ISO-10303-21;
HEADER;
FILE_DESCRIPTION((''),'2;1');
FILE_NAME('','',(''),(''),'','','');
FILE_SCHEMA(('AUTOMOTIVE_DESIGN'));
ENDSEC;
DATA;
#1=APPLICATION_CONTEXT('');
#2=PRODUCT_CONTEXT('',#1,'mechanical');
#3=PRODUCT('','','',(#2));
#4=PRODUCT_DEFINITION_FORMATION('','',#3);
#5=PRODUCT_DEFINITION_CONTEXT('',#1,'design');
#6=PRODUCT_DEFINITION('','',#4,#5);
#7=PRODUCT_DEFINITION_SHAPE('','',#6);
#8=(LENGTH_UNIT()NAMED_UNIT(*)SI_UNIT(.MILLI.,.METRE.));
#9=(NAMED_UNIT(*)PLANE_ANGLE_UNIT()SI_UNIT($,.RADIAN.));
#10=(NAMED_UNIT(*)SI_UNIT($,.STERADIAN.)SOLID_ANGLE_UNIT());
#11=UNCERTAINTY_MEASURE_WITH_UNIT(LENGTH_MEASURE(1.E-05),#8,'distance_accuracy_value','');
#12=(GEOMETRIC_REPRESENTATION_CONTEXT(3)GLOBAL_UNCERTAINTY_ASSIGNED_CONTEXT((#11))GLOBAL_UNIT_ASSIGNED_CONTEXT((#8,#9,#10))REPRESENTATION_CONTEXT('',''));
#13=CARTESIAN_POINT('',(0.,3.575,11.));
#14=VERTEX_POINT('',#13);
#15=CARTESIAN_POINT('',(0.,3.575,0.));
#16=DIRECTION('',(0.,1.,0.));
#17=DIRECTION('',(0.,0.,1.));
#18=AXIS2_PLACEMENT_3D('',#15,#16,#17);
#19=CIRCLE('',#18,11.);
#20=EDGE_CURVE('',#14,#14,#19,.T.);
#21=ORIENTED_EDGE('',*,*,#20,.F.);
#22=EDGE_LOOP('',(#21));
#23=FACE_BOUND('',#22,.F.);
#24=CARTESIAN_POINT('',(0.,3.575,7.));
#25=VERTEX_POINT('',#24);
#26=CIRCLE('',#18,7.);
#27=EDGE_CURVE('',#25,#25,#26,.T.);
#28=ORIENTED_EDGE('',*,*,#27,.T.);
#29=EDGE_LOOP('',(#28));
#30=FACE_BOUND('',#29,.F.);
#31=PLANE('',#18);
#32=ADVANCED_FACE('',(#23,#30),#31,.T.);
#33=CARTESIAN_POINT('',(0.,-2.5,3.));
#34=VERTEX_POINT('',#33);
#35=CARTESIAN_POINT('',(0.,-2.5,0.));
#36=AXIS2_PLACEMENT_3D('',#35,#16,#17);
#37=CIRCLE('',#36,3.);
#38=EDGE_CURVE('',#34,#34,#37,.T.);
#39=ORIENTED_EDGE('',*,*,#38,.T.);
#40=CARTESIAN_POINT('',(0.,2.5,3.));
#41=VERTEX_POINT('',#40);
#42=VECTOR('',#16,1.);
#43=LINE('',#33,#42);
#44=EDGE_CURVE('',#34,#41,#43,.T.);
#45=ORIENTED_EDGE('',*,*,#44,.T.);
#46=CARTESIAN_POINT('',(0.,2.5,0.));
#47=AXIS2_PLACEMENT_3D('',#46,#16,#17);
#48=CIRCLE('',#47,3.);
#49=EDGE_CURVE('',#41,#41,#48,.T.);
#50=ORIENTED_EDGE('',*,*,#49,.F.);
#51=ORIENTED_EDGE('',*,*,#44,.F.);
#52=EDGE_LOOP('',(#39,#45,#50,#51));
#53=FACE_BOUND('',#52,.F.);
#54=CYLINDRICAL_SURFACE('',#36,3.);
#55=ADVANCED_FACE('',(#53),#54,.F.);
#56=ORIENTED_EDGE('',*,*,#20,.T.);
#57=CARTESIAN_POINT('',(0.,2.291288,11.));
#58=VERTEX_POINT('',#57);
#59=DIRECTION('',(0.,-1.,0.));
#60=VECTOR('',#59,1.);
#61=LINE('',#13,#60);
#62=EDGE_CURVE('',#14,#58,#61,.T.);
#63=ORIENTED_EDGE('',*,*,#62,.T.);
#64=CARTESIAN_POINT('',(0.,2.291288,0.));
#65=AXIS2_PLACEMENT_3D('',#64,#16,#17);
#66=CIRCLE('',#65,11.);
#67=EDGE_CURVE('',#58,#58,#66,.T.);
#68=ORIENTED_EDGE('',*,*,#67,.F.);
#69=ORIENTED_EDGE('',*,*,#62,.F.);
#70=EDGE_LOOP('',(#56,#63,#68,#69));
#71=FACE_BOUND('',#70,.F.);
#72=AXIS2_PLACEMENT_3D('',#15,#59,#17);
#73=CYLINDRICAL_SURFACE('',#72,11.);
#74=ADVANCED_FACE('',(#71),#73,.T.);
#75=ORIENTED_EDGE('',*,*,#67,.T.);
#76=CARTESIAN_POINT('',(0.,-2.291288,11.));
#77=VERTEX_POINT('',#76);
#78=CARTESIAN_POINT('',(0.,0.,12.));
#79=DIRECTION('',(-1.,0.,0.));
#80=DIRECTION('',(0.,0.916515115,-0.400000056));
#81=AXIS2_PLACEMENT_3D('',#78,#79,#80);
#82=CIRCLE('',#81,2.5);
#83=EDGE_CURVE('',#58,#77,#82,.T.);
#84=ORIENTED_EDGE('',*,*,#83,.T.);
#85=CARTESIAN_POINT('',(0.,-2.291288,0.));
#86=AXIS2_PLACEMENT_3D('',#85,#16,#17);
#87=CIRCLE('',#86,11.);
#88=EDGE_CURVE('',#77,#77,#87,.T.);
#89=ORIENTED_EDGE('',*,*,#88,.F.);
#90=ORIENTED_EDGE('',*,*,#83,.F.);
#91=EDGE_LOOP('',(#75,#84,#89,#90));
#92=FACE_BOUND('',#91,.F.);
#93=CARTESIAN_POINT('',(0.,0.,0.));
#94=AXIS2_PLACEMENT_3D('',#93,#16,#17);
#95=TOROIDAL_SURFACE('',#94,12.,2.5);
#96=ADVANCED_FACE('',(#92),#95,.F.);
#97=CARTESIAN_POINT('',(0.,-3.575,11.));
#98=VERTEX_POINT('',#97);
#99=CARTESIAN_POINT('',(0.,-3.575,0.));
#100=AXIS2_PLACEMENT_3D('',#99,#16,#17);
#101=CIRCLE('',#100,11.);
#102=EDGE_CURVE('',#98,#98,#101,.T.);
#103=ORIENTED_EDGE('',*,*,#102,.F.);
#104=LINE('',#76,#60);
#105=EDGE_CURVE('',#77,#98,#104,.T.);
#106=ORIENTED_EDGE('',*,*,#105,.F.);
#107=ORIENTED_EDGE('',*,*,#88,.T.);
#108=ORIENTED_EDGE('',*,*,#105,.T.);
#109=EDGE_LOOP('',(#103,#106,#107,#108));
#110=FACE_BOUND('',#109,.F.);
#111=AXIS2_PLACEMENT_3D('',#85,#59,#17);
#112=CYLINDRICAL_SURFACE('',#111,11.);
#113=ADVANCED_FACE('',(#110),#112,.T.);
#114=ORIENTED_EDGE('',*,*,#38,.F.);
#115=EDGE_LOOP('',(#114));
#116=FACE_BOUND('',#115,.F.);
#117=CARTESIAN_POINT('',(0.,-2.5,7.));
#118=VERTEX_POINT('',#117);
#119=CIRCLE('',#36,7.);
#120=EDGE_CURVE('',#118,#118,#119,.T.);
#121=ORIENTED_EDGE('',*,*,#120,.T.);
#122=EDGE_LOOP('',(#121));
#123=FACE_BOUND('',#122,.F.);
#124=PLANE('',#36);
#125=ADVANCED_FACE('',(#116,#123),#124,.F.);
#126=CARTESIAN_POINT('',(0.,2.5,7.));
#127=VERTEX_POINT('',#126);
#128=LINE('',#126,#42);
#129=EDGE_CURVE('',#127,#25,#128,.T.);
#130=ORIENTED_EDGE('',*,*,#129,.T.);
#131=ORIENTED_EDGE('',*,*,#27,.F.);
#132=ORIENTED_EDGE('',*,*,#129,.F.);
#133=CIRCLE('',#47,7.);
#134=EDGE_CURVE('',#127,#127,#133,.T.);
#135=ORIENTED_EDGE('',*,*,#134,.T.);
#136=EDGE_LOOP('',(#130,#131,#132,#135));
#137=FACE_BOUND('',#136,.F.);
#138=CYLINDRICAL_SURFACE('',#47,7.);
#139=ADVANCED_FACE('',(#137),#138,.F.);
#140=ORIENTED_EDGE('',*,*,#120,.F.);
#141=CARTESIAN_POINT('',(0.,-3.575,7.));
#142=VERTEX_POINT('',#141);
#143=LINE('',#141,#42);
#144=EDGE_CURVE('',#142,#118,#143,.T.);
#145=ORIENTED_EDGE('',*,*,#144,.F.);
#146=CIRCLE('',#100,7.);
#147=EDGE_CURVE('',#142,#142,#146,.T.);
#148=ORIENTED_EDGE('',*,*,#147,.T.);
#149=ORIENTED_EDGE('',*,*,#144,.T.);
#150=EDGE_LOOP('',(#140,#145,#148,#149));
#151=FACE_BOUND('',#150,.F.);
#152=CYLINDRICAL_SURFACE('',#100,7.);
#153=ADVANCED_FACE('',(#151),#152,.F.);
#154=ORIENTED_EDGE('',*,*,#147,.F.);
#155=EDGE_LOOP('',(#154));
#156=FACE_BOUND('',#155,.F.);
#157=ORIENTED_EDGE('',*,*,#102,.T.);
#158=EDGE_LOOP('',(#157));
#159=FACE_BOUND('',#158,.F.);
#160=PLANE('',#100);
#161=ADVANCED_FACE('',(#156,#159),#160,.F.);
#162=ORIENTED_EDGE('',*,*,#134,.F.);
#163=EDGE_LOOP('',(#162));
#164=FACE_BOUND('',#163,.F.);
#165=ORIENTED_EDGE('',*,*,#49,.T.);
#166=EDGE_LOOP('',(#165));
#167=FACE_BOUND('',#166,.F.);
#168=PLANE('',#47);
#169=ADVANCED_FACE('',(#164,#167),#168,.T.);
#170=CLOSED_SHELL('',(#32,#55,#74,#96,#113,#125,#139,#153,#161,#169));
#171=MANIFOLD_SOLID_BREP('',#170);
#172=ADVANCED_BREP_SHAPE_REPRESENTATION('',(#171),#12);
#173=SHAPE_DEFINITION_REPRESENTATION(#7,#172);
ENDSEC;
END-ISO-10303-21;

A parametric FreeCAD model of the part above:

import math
import FreeCAD as App
import Part
import Sketcher
Q = App.Units.Quantity

doc = App.newDocument("Part")
params = doc.addObject("Spreadsheet::Sheet", "Params")
for row, (alias, value) in enumerate([
    ("sketch1_radius", "2.5 mm"),
    ("sketch1_width", "5 mm"),
    ("sketch1_height", "4 mm"),
    ("revolution_angle", "360 deg"),
], start=1):
    params.set(f"A{row}", alias)
    params.set(f"B{row}", "=" + value)
    params.setAlias(f"B{row}", alias)

body = doc.addObject("PartDesign::Body", "Body")

# Sketch on YZ plane
sketch1 = doc.addObject("Sketcher::SketchObject", "Sketch")
body.addObject(sketch1)
sketch1.AttachmentSupport = (doc.YZ_Plane, [""])
sketch1.MapMode = "FlatFace"
sketch1.addGeometry(Part.LineSegment(App.Vector(-2.5, 7, 0), App.Vector(-2.5, 3, 0)), False)
sketch1.addGeometry(Part.LineSegment(App.Vector(-2.5, 3, 0), App.Vector(2.5, 3, 0)), False)
sketch1.addGeometry(Part.LineSegment(App.Vector(2.5, 3, 0), App.Vector(2.5, 7, 0)), False)
sketch1.addGeometry(Part.LineSegment(App.Vector(2.5, 7, 0), App.Vector(3.6, 7, 0)), False)
sketch1.addGeometry(Part.LineSegment(App.Vector(3.6, 7, 0), App.Vector(3.6, 11, 0)), False)
sketch1.addGeometry(Part.LineSegment(App.Vector(3.6, 11, 0), App.Vector(2.3, 11, 0)), False)
sketch1.addGeometry(Part.ArcOfCircle(Part.Circle(App.Vector(0, 12, 0), App.Vector(0, 0, 1), 2.5), math.radians(-156), math.radians(-24)), False)
sketch1.addGeometry(Part.LineSegment(App.Vector(-2.3, 11, 0), App.Vector(-3.6, 11, 0)), False)
sketch1.addGeometry(Part.LineSegment(App.Vector(-3.6, 11, 0), App.Vector(-3.6, 7, 0)), False)
sketch1.addGeometry(Part.LineSegment(App.Vector(-3.6, 7, 0), App.Vector(-2.5, 7, 0)), False)
sketch1.addConstraint(Sketcher.Constraint("Coincident", 0, 2, 1, 1))
sketch1.addConstraint(Sketcher.Constraint("Coincident", 1, 2, 2, 1))
sketch1.addConstraint(Sketcher.Constraint("Coincident", 2, 2, 3, 1))
sketch1.addConstraint(Sketcher.Constraint("Coincident", 3, 2, 4, 1))
sketch1.addConstraint(Sketcher.Constraint("Coincident", 4, 2, 5, 1))
sketch1.addConstraint(Sketcher.Constraint("Coincident", 5, 2, 6, 2))
sketch1.addConstraint(Sketcher.Constraint("Coincident", 6, 1, 7, 1))
sketch1.addConstraint(Sketcher.Constraint("Coincident", 7, 2, 8, 1))
sketch1.addConstraint(Sketcher.Constraint("Coincident", 8, 2, 9, 1))
sketch1.addConstraint(Sketcher.Constraint("Coincident", 9, 2, 0, 1))
sketch1.addConstraint(Sketcher.Constraint("Vertical", 0))
sketch1.addConstraint(Sketcher.Constraint("Horizontal", 1))
sketch1.addConstraint(Sketcher.Constraint("Vertical", 2))
sketch1.addConstraint(Sketcher.Constraint("Horizontal", 3))
sketch1.addConstraint(Sketcher.Constraint("Vertical", 4))
sketch1.addConstraint(Sketcher.Constraint("Horizontal", 5))
sketch1.addConstraint(Sketcher.Constraint("Horizontal", 7))
sketch1.addConstraint(Sketcher.Constraint("Vertical", 8))
sketch1.addConstraint(Sketcher.Constraint("Horizontal", 9))
sketch1.addConstraint(Sketcher.Constraint("Symmetric", 5, 2, 6, 1, -2))
sketch1.addConstraint(Sketcher.Constraint("Symmetric", 3, 2, 8, 2, -2))
sketch1.addConstraint(Sketcher.Constraint("Equal", 3, 9))
sketch1.addConstraint(Sketcher.Constraint("Equal", 2, 4))
sketch1.addConstraint(Sketcher.Constraint("Radius", 6, Q("2.5 mm")))
sketch1.addConstraint(Sketcher.Constraint("DistanceX", 1, 1, 1, 2, Q("5 mm")))
sketch1.addConstraint(Sketcher.Constraint("DistanceY", 0, 2, 0, 1, Q("4 mm")))
sketch1.addConstraint(Sketcher.Constraint("DistanceY", -1, 1, 6, 3, Q("12 mm")))
sketch1.addConstraint(Sketcher.Constraint("DistanceY", -1, 1, 0, 2, Q("3 mm")))
sketch1.addConstraint(Sketcher.Constraint("DistanceX", 3, 1, 3, 2, Q("1.075 mm")))
sketch1.setExpression("Constraints[23]", "Params.sketch1_radius")
sketch1.setExpression("Constraints[24]", "Params.sketch1_width")
sketch1.setExpression("Constraints[25]", "Params.sketch1_height")
revolution = doc.addObject("PartDesign::Revolution", "Revolution")
body.addObject(revolution)
revolution.Profile = sketch1
revolution.ReferenceAxis = (sketch1, ["H_Axis"])
revolution.setExpression("Angle", "Params.revolution_angle")

doc.recompute()
